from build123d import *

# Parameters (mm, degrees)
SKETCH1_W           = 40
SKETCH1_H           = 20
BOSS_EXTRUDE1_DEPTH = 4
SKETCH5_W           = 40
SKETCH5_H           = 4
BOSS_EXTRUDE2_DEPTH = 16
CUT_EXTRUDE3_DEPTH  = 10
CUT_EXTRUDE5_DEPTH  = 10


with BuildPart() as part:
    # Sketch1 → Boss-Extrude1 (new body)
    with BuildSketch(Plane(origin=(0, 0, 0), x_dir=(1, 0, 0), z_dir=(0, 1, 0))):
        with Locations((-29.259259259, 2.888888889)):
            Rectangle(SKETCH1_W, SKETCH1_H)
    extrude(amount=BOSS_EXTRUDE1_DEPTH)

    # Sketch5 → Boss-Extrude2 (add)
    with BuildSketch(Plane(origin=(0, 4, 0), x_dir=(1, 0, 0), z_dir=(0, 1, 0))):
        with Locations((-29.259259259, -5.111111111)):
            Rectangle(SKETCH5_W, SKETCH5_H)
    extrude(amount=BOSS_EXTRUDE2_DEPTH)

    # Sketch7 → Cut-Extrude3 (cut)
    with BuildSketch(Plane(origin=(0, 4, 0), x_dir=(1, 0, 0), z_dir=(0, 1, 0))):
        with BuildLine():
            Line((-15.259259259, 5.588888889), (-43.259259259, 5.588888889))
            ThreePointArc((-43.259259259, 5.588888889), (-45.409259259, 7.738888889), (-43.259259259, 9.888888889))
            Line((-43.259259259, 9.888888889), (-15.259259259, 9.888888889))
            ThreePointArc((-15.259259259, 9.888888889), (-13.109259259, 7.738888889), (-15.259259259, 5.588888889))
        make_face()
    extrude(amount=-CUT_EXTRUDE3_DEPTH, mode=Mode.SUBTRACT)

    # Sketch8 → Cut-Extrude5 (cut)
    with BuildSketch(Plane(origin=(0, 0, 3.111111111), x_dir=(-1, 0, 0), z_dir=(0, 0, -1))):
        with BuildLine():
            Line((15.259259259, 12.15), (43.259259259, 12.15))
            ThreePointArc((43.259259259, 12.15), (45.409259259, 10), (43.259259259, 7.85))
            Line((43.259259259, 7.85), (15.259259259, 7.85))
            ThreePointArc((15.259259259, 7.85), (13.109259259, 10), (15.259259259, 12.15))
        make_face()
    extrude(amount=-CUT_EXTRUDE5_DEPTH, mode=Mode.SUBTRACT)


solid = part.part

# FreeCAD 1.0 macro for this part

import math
import FreeCAD as App
import Part
import Sketcher
from FreeCAD import Vector


def add_polygon(sketch, points):
    """Adds a closed chain of lines whose ends are joined by coincident constraints."""
    first, n = sketch.GeometryCount, len(points)
    for a, b in zip(points, points[1:] + points[:1]):
        sketch.addGeometry(Part.LineSegment(App.Vector(*a, 0), App.Vector(*b, 0)), False)
    for i in range(n):
        sketch.addConstraint(Sketcher.Constraint("Coincident", first + i, 2, first + (i + 1) % n, 1))

doc = App.newDocument("Part")
body = doc.addObject("PartDesign::Body", "Body")

sketch1 = doc.addObject("Sketcher::SketchObject", "Sketch")
body.addObject(sketch1)
sketch1.AttachmentSupport = (doc.XZ_Plane, [""])
sketch1.MapMode = "FlatFace"
add_polygon(sketch1, [(-49, -13), (-49, 7), (-9, 7), (-9, -13)])
sketch1.addConstraint([
    Sketcher.Constraint("Vertical", 0),
    Sketcher.Constraint("Horizontal", 1),
    Sketcher.Constraint("Vertical", 2),
    Sketcher.Constraint("Horizontal", 3),
    Sketcher.Constraint("DistanceX", 1, 1, 1, 2, 40.0),
    Sketcher.Constraint("DistanceY", 0, 1, 0, 2, 20.0),
    Sketcher.Constraint("DistanceX", 0, 2, -1, 1, 49.259259),
    Sketcher.Constraint("DistanceY", -1, 1, 0, 2, 7.111111),
])
pad1 = doc.addObject("PartDesign::Pad", "Pad")
body.addObject(pad1)
pad1.Profile = sketch1
pad1.Length = 4
pad1.Reversed = True

sketch2 = doc.addObject("Sketcher::SketchObject", "Sketch001")
body.addObject(sketch2)
sketch2.AttachmentSupport = (doc.XZ_Plane, [""])
sketch2.MapMode = "FlatFace"
sketch2.AttachmentOffset = App.Placement(Vector(0, 0, -4), App.Rotation())
add_polygon(sketch2, [(-49.3, 3.1), (-49.3, 7.1), (-9.3, 7.1), (-9.3, 3.1)])
sketch2.addConstraint([
    Sketcher.Constraint("Vertical", 0),
    Sketcher.Constraint("Horizontal", 1),
    Sketcher.Constraint("Vertical", 2),
    Sketcher.Constraint("Horizontal", 3),
    Sketcher.Constraint("DistanceX", 1, 1, 1, 2, 40.0),
    Sketcher.Constraint("DistanceY", 0, 1, 0, 2, 4.0),
    Sketcher.Constraint("DistanceX", 0, 2, -1, 1, 49.259259),
    Sketcher.Constraint("DistanceY", -1, 1, 0, 2, 7.111111),
])
pad2 = doc.addObject("PartDesign::Pad", "Pad001")
body.addObject(pad2)
pad2.Profile = sketch2
pad2.Length = 16
pad2.Reversed = True

sketch3 = doc.addObject("Sketcher::SketchObject", "Sketch002")
body.addObject(sketch3)
sketch3.AttachmentSupport = (doc.XZ_Plane, [""])
sketch3.MapMode = "FlatFace"
sketch3.AttachmentOffset = App.Placement(Vector(0, 0, -4), App.Rotation())
sketch3.addGeometry([
    Part.LineSegment(Vector(-43.3, -5.6, 0), Vector(-15.3, -5.6, 0)),
    Part.ArcOfCircle(Part.Circle(Vector(-15.3, -7.7, 0), Vector(0, 0, 1), 2.1), math.radians(-90), math.radians(90)),
    Part.LineSegment(Vector(-15.3, -9.9, 0), Vector(-43.3, -9.9, 0)),
    Part.ArcOfCircle(Part.Circle(Vector(-43.3, -7.7, 0), Vector(0, 0, 1), 2.1), math.radians(90), math.radians(270)),
], False)
sketch3.addConstraint([
    Sketcher.Constraint("Tangent", 0, 2, 1, 2),
    Sketcher.Constraint("Tangent", 1, 1, 2, 1),
    Sketcher.Constraint("Tangent", 2, 2, 3, 2),
    Sketcher.Constraint("Tangent", 3, 1, 0, 1),
    Sketcher.Constraint("Horizontal", 0),
    Sketcher.Constraint("Horizontal", 2),
    Sketcher.Constraint("DistanceX", 0, 1, 0, 2, 28.0),
    Sketcher.Constraint("Radius", 1, 2.15),
    Sketcher.Constraint("DistanceX", 1, 3, -1, 1, 15.259259),
    Sketcher.Constraint("DistanceY", 1, 3, -1, 1, 7.738889),
])
pocket1 = doc.addObject("PartDesign::Pocket", "Pocket")
body.addObject(pocket1)
pocket1.Profile = sketch3
pocket1.Length = 10
pocket1.Reversed = True

sketch4 = doc.addObject("Sketcher::SketchObject", "Sketch003")
body.addObject(sketch4)
sketch4.AttachmentSupport = (doc.XY_Plane, [""])
sketch4.MapMode = "FlatFace"
sketch4.AttachmentOffset = App.Placement(Vector(0, 0, 3.111111), App.Rotation())
sketch4.addGeometry([
    Part.LineSegment(Vector(-43.3, 12.2, 0), Vector(-15.3, 12.2, 0)),
    Part.ArcOfCircle(Part.Circle(Vector(-15.3, 10, 0), Vector(0, 0, 1), 2.1), math.radians(-90), math.radians(90)),
    Part.LineSegment(Vector(-15.3, 7.8, 0), Vector(-43.3, 7.8, 0)),
    Part.ArcOfCircle(Part.Circle(Vector(-43.3, 10, 0), Vector(0, 0, 1), 2.1), math.radians(90), math.radians(270)),
], False)
sketch4.addConstraint([
    Sketcher.Constraint("Tangent", 0, 2, 1, 2),
    Sketcher.Constraint("Tangent", 1, 1, 2, 1),
    Sketcher.Constraint("Tangent", 2, 2, 3, 2),
    Sketcher.Constraint("Tangent", 3, 1, 0, 1),
    Sketcher.Constraint("Horizontal", 0),
    Sketcher.Constraint("Horizontal", 2),
    Sketcher.Constraint("DistanceX", 0, 1, 0, 2, 28.0),
    Sketcher.Constraint("Radius", 1, 2.15),
    Sketcher.Constraint("DistanceY", -1, 1, 1, 3, 10.0),
    Sketcher.Constraint("DistanceX", 1, 3, -1, 1, 15.259259),
])
pocket2 = doc.addObject("PartDesign::Pocket", "Pocket001")
body.addObject(pocket2)
pocket2.Profile = sketch4
pocket2.Length = 10
pocket2.Reversed = True

doc.recompute()
